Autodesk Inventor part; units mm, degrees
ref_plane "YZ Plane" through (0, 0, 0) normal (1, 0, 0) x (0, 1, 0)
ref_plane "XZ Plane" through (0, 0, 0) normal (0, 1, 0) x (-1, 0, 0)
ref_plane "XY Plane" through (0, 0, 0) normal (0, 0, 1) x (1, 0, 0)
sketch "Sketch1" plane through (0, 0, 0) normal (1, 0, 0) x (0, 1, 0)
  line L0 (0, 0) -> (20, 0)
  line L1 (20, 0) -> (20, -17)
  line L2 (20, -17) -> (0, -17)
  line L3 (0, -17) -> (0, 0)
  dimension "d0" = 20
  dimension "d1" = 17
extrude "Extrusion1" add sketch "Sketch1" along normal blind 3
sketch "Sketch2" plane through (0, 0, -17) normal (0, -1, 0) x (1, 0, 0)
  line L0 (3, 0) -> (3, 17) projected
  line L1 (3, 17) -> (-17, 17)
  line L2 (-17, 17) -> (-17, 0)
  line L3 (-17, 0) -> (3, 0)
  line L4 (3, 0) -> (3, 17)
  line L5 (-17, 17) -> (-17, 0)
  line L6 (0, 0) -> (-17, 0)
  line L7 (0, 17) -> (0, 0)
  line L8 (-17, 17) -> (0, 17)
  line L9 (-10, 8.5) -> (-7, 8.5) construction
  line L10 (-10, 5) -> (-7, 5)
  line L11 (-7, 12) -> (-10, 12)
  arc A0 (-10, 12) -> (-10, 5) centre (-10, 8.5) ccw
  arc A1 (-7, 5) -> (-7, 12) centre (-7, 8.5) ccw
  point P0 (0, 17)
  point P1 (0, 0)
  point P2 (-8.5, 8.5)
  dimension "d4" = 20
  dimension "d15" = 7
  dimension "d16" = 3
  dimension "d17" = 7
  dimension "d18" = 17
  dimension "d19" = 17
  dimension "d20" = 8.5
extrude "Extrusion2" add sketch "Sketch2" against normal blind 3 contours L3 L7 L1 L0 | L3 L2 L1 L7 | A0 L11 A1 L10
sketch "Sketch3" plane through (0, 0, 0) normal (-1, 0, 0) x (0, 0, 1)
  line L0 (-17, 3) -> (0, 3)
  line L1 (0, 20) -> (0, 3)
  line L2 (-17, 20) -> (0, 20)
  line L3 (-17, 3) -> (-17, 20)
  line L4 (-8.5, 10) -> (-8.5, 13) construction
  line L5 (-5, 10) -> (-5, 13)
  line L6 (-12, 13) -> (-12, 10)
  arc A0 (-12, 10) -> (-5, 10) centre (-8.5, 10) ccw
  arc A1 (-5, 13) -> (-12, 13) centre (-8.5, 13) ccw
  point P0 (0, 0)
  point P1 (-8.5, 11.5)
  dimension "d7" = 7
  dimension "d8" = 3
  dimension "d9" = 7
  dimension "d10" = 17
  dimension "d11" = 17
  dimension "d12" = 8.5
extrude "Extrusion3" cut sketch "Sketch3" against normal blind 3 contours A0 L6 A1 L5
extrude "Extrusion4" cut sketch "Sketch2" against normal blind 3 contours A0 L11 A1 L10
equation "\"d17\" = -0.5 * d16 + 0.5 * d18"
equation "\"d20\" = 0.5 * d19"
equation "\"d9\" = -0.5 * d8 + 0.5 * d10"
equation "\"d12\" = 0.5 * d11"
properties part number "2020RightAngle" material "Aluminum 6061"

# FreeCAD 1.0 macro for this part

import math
import FreeCAD as App
import Part
import Sketcher
from FreeCAD import Vector


def add_polygon(sketch, points):
    """Adds a closed chain of lines whose ends are joined by coincident constraints."""
    first, n = sketch.GeometryCount, len(points)
    for a, b in zip(points, points[1:] + points[:1]):
        sketch.addGeometry(Part.LineSegment(App.Vector(*a, 0), App.Vector(*b, 0)), False)
    for i in range(n):
        sketch.addConstraint(Sketcher.Constraint("Coincident", first + i, 2, first + (i + 1) % n, 1))

doc = App.newDocument("Part")
body = doc.addObject("PartDesign::Body", "Body")

# Sketch on YZ plane
sketch1 = doc.addObject("Sketcher::SketchObject", "Sketch")
body.addObject(sketch1)
sketch1.AttachmentSupport = (doc.YZ_Plane, [""])
sketch1.MapMode = "FlatFace"
add_polygon(sketch1, [(20, 0), (0, 0), (0, -17), (20, -17)])  # lines 0-3
sketch1.addConstraint([
    Sketcher.Constraint("Horizontal", 0),
    Sketcher.Constraint("Vertical", 1),
    Sketcher.Constraint("Horizontal", 2),
    Sketcher.Constraint("Vertical", 3),
    Sketcher.Constraint("Coincident", 0, 2, -1, 1),
    Sketcher.Constraint("DistanceX", 0, 2, 0, 1, 20.0),
    Sketcher.Constraint("DistanceY", 1, 2, 1, 1, 17.0),
])
pad1 = doc.addObject("PartDesign::Pad", "Pad")
body.addObject(pad1)
pad1.Profile = sketch1
pad1.Length = 3

# Sketch on XZ plane
sketch2 = doc.addObject("Sketcher::SketchObject", "Sketch001")
body.addObject(sketch2)
sketch2.AttachmentSupport = (doc.XZ_Plane, [""])
sketch2.MapMode = "FlatFace"
add_polygon(sketch2, [(3, -17), (3, 0), (-17, 0), (-17, -17)])  # lines 0-3
sketch2.addConstraint([
    Sketcher.Constraint("Vertical", 0),
    Sketcher.Constraint("Horizontal", 1),
    Sketcher.Constraint("Vertical", 2),
    Sketcher.Constraint("Horizontal", 3),
    Sketcher.Constraint("PointOnObject", 0, 2, -1),
    Sketcher.Constraint("DistanceX", 1, 2, 1, 1, 20.0),
    Sketcher.Constraint("DistanceY", 0, 1, 0, 2, 17.0),
    Sketcher.Constraint("DistanceX", -1, 1, 0, 2, 3.0),
])
pad2 = doc.addObject("PartDesign::Pad", "Pad001")
body.addObject(pad2)
pad2.Profile = sketch2
pad2.Length = 3
pad2.Reversed = True

# Sketch on YZ plane
sketch3 = doc.addObject("Sketcher::SketchObject", "Sketch002")
body.addObject(sketch3)
sketch3.AttachmentSupport = (doc.YZ_Plane, [""])
sketch3.MapMode = "FlatFace"
sketch3.addGeometry([
    Part.ArcOfCircle(Part.Circle(Vector(10, -8.5, 0), Vector(0, 0, 1), 3.5), math.radians(90), math.radians(270)),
    Part.LineSegment(Vector(10, -5, 0), Vector(13, -5, 0)),
    Part.ArcOfCircle(Part.Circle(Vector(13, -8.5, 0), Vector(0, 0, 1), 3.5), math.radians(-90), math.radians(90)),
    Part.LineSegment(Vector(13, -12, 0), Vector(10, -12, 0)),
], False)
sketch3.addConstraint([
    Sketcher.Constraint("Tangent", 0, 1, 1, 1),
    Sketcher.Constraint("Tangent", 1, 2, 2, 2),
    Sketcher.Constraint("Tangent", 2, 1, 3, 1),
    Sketcher.Constraint("Tangent", 3, 2, 0, 2),
    Sketcher.Constraint("Horizontal", 1),
    Sketcher.Constraint("Horizontal", 3),
    Sketcher.Constraint("Radius", 0, 3.5),
    Sketcher.Constraint("DistanceX", 1, 1, 1, 2, 3.0),
    Sketcher.Constraint("DistanceY", 0, 3, -1, 1, 8.5),
    Sketcher.Constraint("DistanceX", -1, 1, 0, 3, 10.0),
])
pocket1 = doc.addObject("PartDesign::Pocket", "Pocket")
body.addObject(pocket1)
pocket1.Profile = sketch3
pocket1.Length = 3
pocket1.Reversed = True

# Sketch on XZ plane
sketch4 = doc.addObject("Sketcher::SketchObject", "Sketch003")
body.addObject(sketch4)
sketch4.AttachmentSupport = (doc.XZ_Plane, [""])
sketch4.MapMode = "FlatFace"
sketch4.addGeometry([
    Part.ArcOfCircle(Part.Circle(Vector(-10, -8.5, 0), Vector(0, 0, 1), 3.5), math.radians(90), math.radians(270)),
    Part.LineSegment(Vector(-10, -12, 0), Vector(-7, -12, 0)),
    Part.ArcOfCircle(Part.Circle(Vector(-7, -8.5, 0), Vector(0, 0, 1), 3.5), math.radians(-90), math.radians(90)),
    Part.LineSegment(Vector(-7, -5, 0), Vector(-10, -5, 0)),
], False)
sketch4.addConstraint([
    Sketcher.Constraint("Tangent", 0, 2, 1, 1),
    Sketcher.Constraint("Tangent", 1, 2, 2, 1),
    Sketcher.Constraint("Tangent", 2, 2, 3, 1),
    Sketcher.Constraint("Tangent", 3, 2, 0, 1),
    Sketcher.Constraint("Horizontal", 1),
    Sketcher.Constraint("Horizontal", 3),
    Sketcher.Constraint("Radius", 0, 3.5),
    Sketcher.Constraint("DistanceX", 1, 1, 1, 2, 3.0),
    Sketcher.Constraint("DistanceX", 2, 3, -1, 1, 7.0),
    Sketcher.Constraint("DistanceY", 0, 3, -1, 1, 8.5),
])
pocket2 = doc.addObject("PartDesign::Pocket", "Pocket001")
body.addObject(pocket2)
pocket2.Profile = sketch4
pocket2.Length = 3

doc.recompute()
